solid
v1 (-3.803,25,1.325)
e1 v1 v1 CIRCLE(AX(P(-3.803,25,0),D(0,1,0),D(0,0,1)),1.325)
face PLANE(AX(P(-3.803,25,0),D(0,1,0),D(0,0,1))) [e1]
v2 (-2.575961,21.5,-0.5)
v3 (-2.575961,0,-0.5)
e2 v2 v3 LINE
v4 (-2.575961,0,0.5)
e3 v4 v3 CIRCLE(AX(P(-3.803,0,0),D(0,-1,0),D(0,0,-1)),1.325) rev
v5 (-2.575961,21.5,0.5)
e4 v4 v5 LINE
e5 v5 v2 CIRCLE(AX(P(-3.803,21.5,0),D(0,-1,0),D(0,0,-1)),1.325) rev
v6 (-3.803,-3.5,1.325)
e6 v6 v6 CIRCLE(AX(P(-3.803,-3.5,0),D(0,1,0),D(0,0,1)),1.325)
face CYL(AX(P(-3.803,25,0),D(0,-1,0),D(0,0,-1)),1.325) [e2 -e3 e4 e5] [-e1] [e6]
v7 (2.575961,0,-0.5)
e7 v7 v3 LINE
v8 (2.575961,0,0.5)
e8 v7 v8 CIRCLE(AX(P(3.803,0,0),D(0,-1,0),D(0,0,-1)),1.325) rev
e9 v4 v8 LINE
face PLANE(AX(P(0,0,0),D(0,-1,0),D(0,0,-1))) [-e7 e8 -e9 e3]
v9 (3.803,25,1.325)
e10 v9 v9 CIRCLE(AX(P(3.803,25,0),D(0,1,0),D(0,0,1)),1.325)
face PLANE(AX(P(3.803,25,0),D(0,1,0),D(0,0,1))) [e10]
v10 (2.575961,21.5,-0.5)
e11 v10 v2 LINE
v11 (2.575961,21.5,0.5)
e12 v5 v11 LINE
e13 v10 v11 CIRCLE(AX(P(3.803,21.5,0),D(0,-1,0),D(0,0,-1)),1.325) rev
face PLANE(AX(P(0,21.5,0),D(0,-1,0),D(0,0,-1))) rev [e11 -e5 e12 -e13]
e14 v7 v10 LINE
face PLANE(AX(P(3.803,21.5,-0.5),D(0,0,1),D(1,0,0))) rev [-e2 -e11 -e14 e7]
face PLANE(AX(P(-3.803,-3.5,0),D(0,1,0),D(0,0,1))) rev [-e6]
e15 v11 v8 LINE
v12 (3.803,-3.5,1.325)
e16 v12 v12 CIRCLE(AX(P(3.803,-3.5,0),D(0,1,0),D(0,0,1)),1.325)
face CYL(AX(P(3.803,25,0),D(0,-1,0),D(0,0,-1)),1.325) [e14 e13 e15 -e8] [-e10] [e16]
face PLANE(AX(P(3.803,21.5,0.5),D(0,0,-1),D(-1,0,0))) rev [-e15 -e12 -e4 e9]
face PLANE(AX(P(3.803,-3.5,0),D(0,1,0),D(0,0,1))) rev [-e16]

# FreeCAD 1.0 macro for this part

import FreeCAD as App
import Part
import Sketcher

V = App.Vector


def add_polygon(sketch, points):
    """Adds a closed chain of lines whose ends are joined by coincident constraints."""
    first, n = sketch.GeometryCount, len(points)
    for a, b in zip(points, points[1:] + points[:1]):
        sketch.addGeometry(Part.LineSegment(App.Vector(*a, 0), App.Vector(*b, 0)), False)
    for i in range(n):
        sketch.addConstraint(Sketcher.Constraint("Coincident", first + i, 2, first + (i + 1) % n, 1))

doc = App.newDocument("Part")
params = doc.addObject("Spreadsheet::Sheet", "Params")
for row, (alias, value) in enumerate([
    ("sketch1_height", "1 mm"),
    ("pad1_length", "21.5 mm"),
    ("sketch2_diameter", "2.65 mm"),
    ("pad2_length", "28.5 mm"),
], start=1):
    params.set(f"A{row}", alias)
    params.set(f"B{row}", "=" + value)
    params.setAlias(f"B{row}", alias)

body = doc.addObject("PartDesign::Body", "Body")

sketch1 = doc.addObject("Sketcher::SketchObject", "Sketch")
body.addObject(sketch1)
sketch1.AttachmentSupport = (doc.XZ_Plane, [""])
sketch1.MapMode = "FlatFace"
add_polygon(sketch1, [(-3.8, -0.5), (-3.8, 0.5), (3.8, 0.5), (3.8, -0.5)])
sketch1.addConstraint(Sketcher.Constraint("Vertical", 0))
sketch1.addConstraint(Sketcher.Constraint("Horizontal", 1))
sketch1.addConstraint(Sketcher.Constraint("Vertical", 2))
sketch1.addConstraint(Sketcher.Constraint("Horizontal", 3))
sketch1.addConstraint(Sketcher.Constraint("Symmetric", 0, 2, 2, 2, -1, 1))
sketch1.addConstraint(Sketcher.Constraint("DistanceY", 0, 1, 0, 2, 1.0))
sketch1.addConstraint(Sketcher.Constraint("DistanceX", 1, 1, 1, 2, 7.606))
sketch1.setExpression("Constraints[9]", "Params.sketch1_height")
pad1 = doc.addObject("PartDesign::Pad", "Pad")
body.addObject(pad1)
pad1.Profile = sketch1
pad1.setExpression("Length", "Params.pad1_length")
pad1.Reversed = True

sketch2 = doc.addObject("Sketcher::SketchObject", "Sketch001")
body.addObject(sketch2)
sketch2.AttachmentSupport = (doc.XZ_Plane, [""])
sketch2.MapMode = "FlatFace"
sketch2.AttachmentOffset = App.Placement(V(0, 0, -10.75), App.Rotation())
sketch2.addGeometry(Part.Circle(V(-3.8, 0, 0), V(0, 0, 1), 1.3), False)
sketch2.addGeometry(Part.Circle(V(3.8, 0, 0), V(0, 0, 1), 1.3), False)
sketch2.addConstraint(Sketcher.Constraint("Equal", 0, 1))
sketch2.addConstraint(Sketcher.Constraint("Symmetric", 0, 3, 1, 3, -1, 1))
sketch2.addConstraint(Sketcher.Constraint("PointOnObject", 0, 3, -1))
sketch2.addConstraint(Sketcher.Constraint("Diameter", 0, 2.65))
sketch2.addConstraint(Sketcher.Constraint("DistanceX", 0, 3, -1, 1, 3.803))
sketch2.setExpression("Constraints[3]", "Params.sketch2_diameter")
pad2 = doc.addObject("PartDesign::Pad", "Pad001")
body.addObject(pad2)
pad2.Profile = sketch2
pad2.setExpression("Length", "Params.pad2_length")
pad2.Midplane = True

doc.recompute()
